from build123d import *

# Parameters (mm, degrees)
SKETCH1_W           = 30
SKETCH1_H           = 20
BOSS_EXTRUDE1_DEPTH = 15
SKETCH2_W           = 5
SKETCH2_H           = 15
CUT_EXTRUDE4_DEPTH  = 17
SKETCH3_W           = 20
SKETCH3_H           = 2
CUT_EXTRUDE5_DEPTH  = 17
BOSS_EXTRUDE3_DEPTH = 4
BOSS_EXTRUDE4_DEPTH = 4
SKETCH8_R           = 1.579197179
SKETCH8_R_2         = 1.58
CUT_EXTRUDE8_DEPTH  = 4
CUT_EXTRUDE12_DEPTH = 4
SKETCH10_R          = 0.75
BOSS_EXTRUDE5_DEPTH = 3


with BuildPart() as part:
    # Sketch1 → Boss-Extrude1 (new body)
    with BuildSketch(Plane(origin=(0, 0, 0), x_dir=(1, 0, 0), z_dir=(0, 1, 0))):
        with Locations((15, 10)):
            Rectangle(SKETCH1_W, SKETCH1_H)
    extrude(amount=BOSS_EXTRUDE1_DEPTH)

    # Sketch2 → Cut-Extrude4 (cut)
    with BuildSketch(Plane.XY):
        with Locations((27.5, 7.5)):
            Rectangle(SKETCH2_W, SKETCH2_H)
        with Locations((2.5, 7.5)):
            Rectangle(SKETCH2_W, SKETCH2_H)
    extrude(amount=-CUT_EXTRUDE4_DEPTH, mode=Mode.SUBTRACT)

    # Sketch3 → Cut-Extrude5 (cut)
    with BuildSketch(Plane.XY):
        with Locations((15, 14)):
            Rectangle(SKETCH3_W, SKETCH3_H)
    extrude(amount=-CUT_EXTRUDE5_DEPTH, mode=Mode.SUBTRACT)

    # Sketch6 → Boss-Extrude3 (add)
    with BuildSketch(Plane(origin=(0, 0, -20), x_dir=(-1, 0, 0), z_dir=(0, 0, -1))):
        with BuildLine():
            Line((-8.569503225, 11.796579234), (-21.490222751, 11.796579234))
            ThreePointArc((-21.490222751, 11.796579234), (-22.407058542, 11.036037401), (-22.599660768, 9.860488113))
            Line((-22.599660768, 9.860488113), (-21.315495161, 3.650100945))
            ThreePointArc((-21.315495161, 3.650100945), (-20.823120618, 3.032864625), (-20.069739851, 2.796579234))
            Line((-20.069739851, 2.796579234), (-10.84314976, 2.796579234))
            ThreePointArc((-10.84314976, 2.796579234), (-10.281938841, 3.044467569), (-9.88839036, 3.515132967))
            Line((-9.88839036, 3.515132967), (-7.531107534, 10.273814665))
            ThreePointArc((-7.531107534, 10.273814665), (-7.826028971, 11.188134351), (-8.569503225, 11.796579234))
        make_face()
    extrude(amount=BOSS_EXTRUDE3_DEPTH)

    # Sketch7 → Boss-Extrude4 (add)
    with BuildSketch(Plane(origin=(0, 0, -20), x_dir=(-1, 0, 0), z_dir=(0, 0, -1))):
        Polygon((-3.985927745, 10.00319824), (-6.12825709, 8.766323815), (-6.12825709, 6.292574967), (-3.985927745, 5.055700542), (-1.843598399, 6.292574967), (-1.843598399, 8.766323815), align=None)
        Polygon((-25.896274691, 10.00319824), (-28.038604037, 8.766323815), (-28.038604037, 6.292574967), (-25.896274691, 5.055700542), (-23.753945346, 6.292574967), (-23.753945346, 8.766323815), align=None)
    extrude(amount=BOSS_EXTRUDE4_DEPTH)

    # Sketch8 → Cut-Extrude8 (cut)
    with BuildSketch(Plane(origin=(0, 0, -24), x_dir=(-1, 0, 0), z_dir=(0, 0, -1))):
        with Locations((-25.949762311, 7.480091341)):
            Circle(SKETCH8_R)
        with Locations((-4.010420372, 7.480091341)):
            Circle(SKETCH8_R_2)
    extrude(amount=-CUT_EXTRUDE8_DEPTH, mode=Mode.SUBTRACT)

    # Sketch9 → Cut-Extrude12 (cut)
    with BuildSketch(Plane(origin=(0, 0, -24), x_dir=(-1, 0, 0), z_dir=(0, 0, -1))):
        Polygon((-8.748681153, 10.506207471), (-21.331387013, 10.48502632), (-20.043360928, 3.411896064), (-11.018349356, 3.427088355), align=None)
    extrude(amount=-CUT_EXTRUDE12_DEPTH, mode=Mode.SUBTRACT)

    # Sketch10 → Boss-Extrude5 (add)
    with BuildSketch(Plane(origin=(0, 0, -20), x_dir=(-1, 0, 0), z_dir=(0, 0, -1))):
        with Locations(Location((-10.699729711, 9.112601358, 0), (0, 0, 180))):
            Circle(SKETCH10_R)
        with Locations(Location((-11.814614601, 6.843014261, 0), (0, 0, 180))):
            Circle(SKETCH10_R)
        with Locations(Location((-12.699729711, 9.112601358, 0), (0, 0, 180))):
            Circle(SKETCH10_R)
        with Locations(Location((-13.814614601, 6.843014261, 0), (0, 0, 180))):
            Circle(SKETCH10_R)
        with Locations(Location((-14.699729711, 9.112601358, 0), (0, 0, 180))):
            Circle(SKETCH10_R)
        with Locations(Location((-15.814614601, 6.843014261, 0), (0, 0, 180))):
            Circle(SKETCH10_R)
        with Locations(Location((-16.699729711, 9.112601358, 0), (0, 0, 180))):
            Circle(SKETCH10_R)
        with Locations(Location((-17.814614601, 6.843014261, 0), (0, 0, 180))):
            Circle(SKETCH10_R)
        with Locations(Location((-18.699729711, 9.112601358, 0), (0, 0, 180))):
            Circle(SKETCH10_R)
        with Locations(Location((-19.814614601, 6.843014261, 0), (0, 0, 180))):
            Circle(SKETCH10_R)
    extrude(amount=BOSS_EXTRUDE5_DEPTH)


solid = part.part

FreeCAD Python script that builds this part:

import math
import FreeCAD as App
import Part
import Sketcher
Q = App.Units.Quantity

doc = App.newDocument("Part")
body = doc.addObject("PartDesign::Body", "Body")

# Sketch on XZ plane
sketch1 = body.newObject("Sketcher::SketchObject", "Sketch")
sketch1.AttachmentSupport = (doc.getObject("XZ_Plane"), [""])
sketch1.MapMode = "FlatFace"
sketch1.addGeometry([
    Part.LineSegment(App.Vector(0, -20, 0), App.Vector(0, 0, 0)),
    Part.LineSegment(App.Vector(0, 0, 0), App.Vector(30, 0, 0)),
    Part.LineSegment(App.Vector(30, 0, 0), App.Vector(30, -20, 0)),
    Part.LineSegment(App.Vector(30, -20, 0), App.Vector(0, -20, 0)),
], False)
sketch1.addConstraint([
    Sketcher.Constraint("Coincident", 0, 2, 1, 1),
    Sketcher.Constraint("Coincident", 1, 2, 2, 1),
    Sketcher.Constraint("Coincident", 2, 2, 3, 1),
    Sketcher.Constraint("Coincident", 3, 2, 0, 1),
    Sketcher.Constraint("Vertical", 0),
    Sketcher.Constraint("Horizontal", 1),
    Sketcher.Constraint("Vertical", 2),
    Sketcher.Constraint("Horizontal", 3),
    Sketcher.Constraint("Coincident", 0, 2, -1, 1),
    Sketcher.Constraint("DistanceX", 1, 1, 1, 2, 30.0),
    Sketcher.Constraint("DistanceY", 0, 1, 0, 2, 20.0),
])
pad1 = body.newObject("PartDesign::Pad", "Pad")
pad1.Profile = sketch1
pad1.Length = 15
pad1.Reversed = True

# Sketch on XY plane
sketch2 = body.newObject("Sketcher::SketchObject", "Sketch001")
sketch2.AttachmentSupport = (doc.getObject("XY_Plane"), [""])
sketch2.MapMode = "FlatFace"
sketch2.addGeometry([
    Part.LineSegment(App.Vector(25, 15, 0), App.Vector(25, 0, 0)),  # 0
    Part.LineSegment(App.Vector(25, 0, 0), App.Vector(30, 0, 0)),  # 1
    Part.LineSegment(App.Vector(30, 0, 0), App.Vector(30, 15, 0)),  # 2
    Part.LineSegment(App.Vector(30, 15, 0), App.Vector(25, 15, 0)),  # 3
    Part.LineSegment(App.Vector(0, 15, 0), App.Vector(0, 0, 0)),  # 4
    Part.LineSegment(App.Vector(0, 0, 0), App.Vector(5, 0, 0)),  # 5
    Part.LineSegment(App.Vector(5, 0, 0), App.Vector(5, 15, 0)),  # 6
    Part.LineSegment(App.Vector(5, 15, 0), App.Vector(0, 15, 0)),  # 7
], False)
sketch2.addConstraint([
    Sketcher.Constraint("Coincident", 0, 2, 1, 1),
    Sketcher.Constraint("Coincident", 1, 2, 2, 1),
    Sketcher.Constraint("Coincident", 2, 2, 3, 1),
    Sketcher.Constraint("Coincident", 3, 2, 0, 1),
    Sketcher.Constraint("Coincident", 4, 2, 5, 1),
    Sketcher.Constraint("Coincident", 5, 2, 6, 1),
    Sketcher.Constraint("Coincident", 6, 2, 7, 1),
    Sketcher.Constraint("Coincident", 7, 2, 4, 1),
    Sketcher.Constraint("Vertical", 0),
    Sketcher.Constraint("Horizontal", 1),
    Sketcher.Constraint("Vertical", 2),
    Sketcher.Constraint("Horizontal", 3),
    Sketcher.Constraint("Vertical", 4),
    Sketcher.Constraint("Horizontal", 5),
    Sketcher.Constraint("Vertical", 6),
    Sketcher.Constraint("Horizontal", 7),
    Sketcher.Constraint("Coincident", 4, 2, -1, 1),
    Sketcher.Constraint("PointOnObject", 0, 2, -1),
    Sketcher.Constraint("Horizontal", 3, 2, 6, 2),
    Sketcher.Constraint("Equal", 3, 5),
    Sketcher.Constraint("DistanceX", 1, 1, 1, 2, 5.0),
    Sketcher.Constraint("DistanceY", 0, 2, 0, 1, 15.0),
    Sketcher.Constraint("DistanceX", -1, 1, 0, 2, 25.0),
])
pocket1 = body.newObject("PartDesign::Pocket", "Pocket")
pocket1.Profile = sketch2
pocket1.Length = 17

# Sketch on XY plane
sketch3 = body.newObject("Sketcher::SketchObject", "Sketch002")
sketch3.AttachmentSupport = (doc.getObject("XY_Plane"), [""])
sketch3.MapMode = "FlatFace"
sketch3.addGeometry([
    Part.LineSegment(App.Vector(5, 15, 0), App.Vector(5, 13, 0)),
    Part.LineSegment(App.Vector(5, 13, 0), App.Vector(25, 13, 0)),
    Part.LineSegment(App.Vector(25, 13, 0), App.Vector(25, 15, 0)),
    Part.LineSegment(App.Vector(25, 15, 0), App.Vector(5, 15, 0)),
], False)
sketch3.addConstraint([
    Sketcher.Constraint("Coincident", 0, 2, 1, 1),
    Sketcher.Constraint("Coincident", 1, 2, 2, 1),
    Sketcher.Constraint("Coincident", 2, 2, 3, 1),
    Sketcher.Constraint("Coincident", 3, 2, 0, 1),
    Sketcher.Constraint("Vertical", 0),
    Sketcher.Constraint("Horizontal", 1),
    Sketcher.Constraint("Vertical", 2),
    Sketcher.Constraint("Horizontal", 3),
    Sketcher.Constraint("DistanceX", 1, 1, 1, 2, 20.0),
    Sketcher.Constraint("DistanceY", 0, 2, 0, 1, 2.0),
    Sketcher.Constraint("DistanceX", -1, 1, 0, 2, 5.0),
    Sketcher.Constraint("DistanceY", -1, 1, 0, 2, 13.0),
])
pocket2 = body.newObject("PartDesign::Pocket", "Pocket001")
pocket2.Profile = sketch3
pocket2.Length = 17

# Sketch on XY plane
sketch4 = body.newObject("Sketcher::SketchObject", "Sketch003")
sketch4.AttachmentSupport = (doc.getObject("XY_Plane"), [""])
sketch4.MapMode = "FlatFace"
sketch4.AttachmentOffset = App.Placement(App.Vector(0, 0, -20), App.Rotation())
sketch4.addGeometry([
    Part.LineSegment(App.Vector(8.6, 11.8, 0), App.Vector(21.5, 11.8, 0)),  # 0
    Part.ArcOfCircle(Part.Circle(App.Vector(20.9, 10.2, 0), App.Vector(0, 0, 1), 1.7), math.radians(-11), math.radians(71)),  # 1
    Part.LineSegment(App.Vector(22.6, 9.9, 0), App.Vector(21.3, 3.7, 0)),  # 2
    Part.ArcOfCircle(Part.Circle(App.Vector(20.1, 4.1, 0), App.Vector(0, 0, 1), 1.4), math.radians(-90), math.radians(-22)),  # 3
    Part.LineSegment(App.Vector(20.1, 2.8, 0), App.Vector(10.8, 2.8, 0)),  # 4
    Part.ArcOfCircle(Part.Circle(App.Vector(11.1, 4.1, 0), App.Vector(0, 0, 1), 1.3), math.radians(-153), math.radians(-101)),  # 5
    Part.LineSegment(App.Vector(9.9, 3.5, 0), App.Vector(7.5, 10.3, 0)),  # 6
    Part.ArcOfCircle(Part.Circle(App.Vector(9.2, 10.2, 0), App.Vector(0, 0, 1), 1.7), math.radians(113), math.radians(179)),  # 7
], False)
sketch4.addConstraint([
    Sketcher.Constraint("Coincident", 0, 2, 1, 2),
    Sketcher.Constraint("Coincident", 1, 1, 2, 1),
    Sketcher.Constraint("Coincident", 2, 2, 3, 2),
    Sketcher.Constraint("Coincident", 3, 1, 4, 1),
    Sketcher.Constraint("Coincident", 4, 2, 5, 2),
    Sketcher.Constraint("Coincident", 5, 1, 6, 1),
    Sketcher.Constraint("Coincident", 6, 2, 7, 2),
    Sketcher.Constraint("Coincident", 7, 1, 0, 1),
    Sketcher.Constraint("Horizontal", 0),
    Sketcher.Constraint("Horizontal", 4),
    Sketcher.Constraint("Equal", 3, 5),
    Sketcher.Constraint("Equal", 1, 7),
    Sketcher.Constraint("Radius", 1, 1.7),
    Sketcher.Constraint("Radius", 3, 1.35),
    Sketcher.Constraint("DistanceY", 4, 2, 7, 1, 9.0),
    Sketcher.Constraint("DistanceX", 0, 1, 0, 2, 12.92072),
    Sketcher.Constraint("DistanceX", 4, 2, 4, 1, 9.22659),
    Sketcher.Constraint("DistanceY", -1, 1, 2, 2, 3.650101),
    Sketcher.Constraint("DistanceX", 5, 1, 3, 3, 10.171699),
    Sketcher.Constraint("Distance", 6, 7.157972),
    Sketcher.Constraint("DistanceY", -1, 1, 1, 3, 10.190821),
    Sketcher.Constraint("DistanceX", -1, 1, 3, 3, 20.060089),
    Sketcher.Constraint("DistanceY", -1, 1, 5, 3, 4.123119),
    Sketcher.Constraint("DistanceY", -1, 1, 7, 3, 10.230369),
    Sketcher.Constraint("DistanceY", -1, 1, 0, 2, 11.796579),
    Sketcher.Constraint("DistanceX", -1, 1, 1, 1, 22.599661),
    Sketcher.Constraint("DistanceY", -1, 1, 1, 1, 9.860488),
    Sketcher.Constraint("DistanceX", -1, 1, 3, 1, 20.06974),
])
pad2 = body.newObject("PartDesign::Pad", "Pad001")
pad2.Profile = sketch4
pad2.Length = 4
pad2.Reversed = True

# Sketch on XY plane
sketch5 = body.newObject("Sketcher::SketchObject", "Sketch004")
sketch5.AttachmentSupport = (doc.getObject("XY_Plane"), [""])
sketch5.MapMode = "FlatFace"
sketch5.AttachmentOffset = App.Placement(App.Vector(0, 0, -20), App.Rotation())
sketch5.addGeometry([
    Part.LineSegment(App.Vector(4, 10, 0), App.Vector(6.1, 8.8, 0)),  # 0
    Part.LineSegment(App.Vector(6.1, 8.8, 0), App.Vector(6.1, 6.3, 0)),  # 1
    Part.LineSegment(App.Vector(6.1, 6.3, 0), App.Vector(4, 5.1, 0)),  # 2
    Part.LineSegment(App.Vector(4, 5.1, 0), App.Vector(1.8, 6.3, 0)),  # 3
    Part.LineSegment(App.Vector(1.8, 6.3, 0), App.Vector(1.8, 8.8, 0)),  # 4
    Part.LineSegment(App.Vector(1.8, 8.8, 0), App.Vector(4, 10, 0)),  # 5
    Part.LineSegment(App.Vector(25.9, 10, 0), App.Vector(28, 8.8, 0)),  # 6
    Part.LineSegment(App.Vector(28, 8.8, 0), App.Vector(28, 6.3, 0)),  # 7
    Part.LineSegment(App.Vector(28, 6.3, 0), App.Vector(25.9, 5.1, 0)),  # 8
    Part.LineSegment(App.Vector(25.9, 5.1, 0), App.Vector(23.8, 6.3, 0)),  # 9
    Part.LineSegment(App.Vector(23.8, 6.3, 0), App.Vector(23.8, 8.8, 0)),  # 10
    Part.LineSegment(App.Vector(23.8, 8.8, 0), App.Vector(25.9, 10, 0)),  # 11
], False)
sketch5.addConstraint([
    Sketcher.Constraint("Coincident", 0, 2, 1, 1),
    Sketcher.Constraint("Coincident", 1, 2, 2, 1),
    Sketcher.Constraint("Coincident", 2, 2, 3, 1),
    Sketcher.Constraint("Coincident", 3, 2, 4, 1),
    Sketcher.Constraint("Coincident", 4, 2, 5, 1),
    Sketcher.Constraint("Coincident", 5, 2, 0, 1),
    Sketcher.Constraint("Coincident", 6, 2, 7, 1),
    Sketcher.Constraint("Coincident", 7, 2, 8, 1),
    Sketcher.Constraint("Coincident", 8, 2, 9, 1),
    Sketcher.Constraint("Coincident", 9, 2, 10, 1),
    Sketcher.Constraint("Coincident", 10, 2, 11, 1),
    Sketcher.Constraint("Coincident", 11, 2, 6, 1),
    Sketcher.Constraint("Vertical", 1),
    Sketcher.Constraint("Vertical", 4),
    Sketcher.Constraint("Vertical", 7),
    Sketcher.Constraint("Vertical", 10),
    Sketcher.Constraint("Parallel", 0, 3),
    Sketcher.Constraint("Parallel", 2, 5),
    Sketcher.Constraint("Parallel", 3, 6),
    Sketcher.Constraint("Parallel", 5, 8),
    Sketcher.Constraint("Parallel", 6, 9),
    Sketcher.Constraint("Parallel", 8, 11),
    Sketcher.Constraint("Horizontal", 1, 2, 3, 2),
    Sketcher.Constraint("Horizontal", 0, 2, 4, 2),
    Sketcher.Constraint("Horizontal", 4, 2, 6, 2),
    Sketcher.Constraint("Horizontal", 3, 2, 7, 2),
    Sketcher.Constraint("Horizontal", 2, 2, 8, 2),
    Sketcher.Constraint("Horizontal", 7, 2, 9, 2),
    Sketcher.Constraint("Horizontal", 6, 2, 10, 2),
    Sketcher.Constraint("Vertical", 2, 2, 5, 2),
    Sketcher.Constraint("Angle", 0, Q("-30 deg")),
    Sketcher.Constraint("DistanceY", 1, 2, 1, 1, 2.473749),
    Sketcher.Constraint("DistanceY", -1, 1, 2, 2, 5.055701),
    Sketcher.Constraint("DistanceX", -1, 1, 3, 2, 1.843598),
    Sketcher.Constraint("DistanceY", -1, 1, 5, 2, 10.003198),
    Sketcher.Constraint("DistanceX", 1, 2, 9, 2, 17.625688),
])
pad3 = body.newObject("PartDesign::Pad", "Pad002")
pad3.Profile = sketch5
pad3.Length = 4
pad3.Reversed = True

# Sketch on XY plane
sketch6 = body.newObject("Sketcher::SketchObject", "Sketch005")
sketch6.AttachmentSupport = (doc.getObject("XY_Plane"), [""])
sketch6.MapMode = "FlatFace"
sketch6.AttachmentOffset = App.Placement(App.Vector(0, 0, -24), App.Rotation())
sketch6.addGeometry([
    Part.Circle(App.Vector(25.9, 7.5, 0), App.Vector(0, 0, 1), 1.6),
    Part.Circle(App.Vector(4, 7.5, 0), App.Vector(0, 0, 1), 1.6),
], False)
sketch6.addConstraint([
    Sketcher.Constraint("Horizontal", 0, 3, 1, 3),
    Sketcher.Constraint("Diameter", 1, 3.16),
    Sketcher.Constraint("Diameter", 0, 3.158394),
    Sketcher.Constraint("DistanceY", -1, 1, 0, 3, 7.480091),
    Sketcher.Constraint("DistanceX", -1, 1, 1, 3, 4.01042),
    Sketcher.Constraint("DistanceX", 1, 3, 0, 3, 21.939342),
])
pocket3 = body.newObject("PartDesign::Pocket", "Pocket002")
pocket3.Profile = sketch6
pocket3.Length = 4
pocket3.Reversed = True

# Sketch on XY plane
sketch7 = body.newObject("Sketcher::SketchObject", "Sketch006")
sketch7.AttachmentSupport = (doc.getObject("XY_Plane"), [""])
sketch7.MapMode = "FlatFace"
sketch7.AttachmentOffset = App.Placement(App.Vector(0, 0, -24), App.Rotation())
sketch7.addGeometry([
    Part.LineSegment(App.Vector(9, 11, 0), App.Vector(21, 10, 0)),
    Part.LineSegment(App.Vector(21, 10, 0), App.Vector(20, 3, 0)),
    Part.LineSegment(App.Vector(20, 3, 0), App.Vector(11, 3, 0)),
    Part.LineSegment(App.Vector(11, 3, 0), App.Vector(9, 11, 0)),
], False)
sketch7.addConstraint([
    Sketcher.Constraint("Coincident", 0, 2, 1, 1),
    Sketcher.Constraint("Coincident", 1, 2, 2, 1),
    Sketcher.Constraint("Coincident", 2, 2, 3, 1),
    Sketcher.Constraint("Coincident", 3, 2, 0, 1),
    Sketcher.Constraint("Parallel", 0, 2),
    Sketcher.Constraint("Distance", 1, 7.189449),
    Sketcher.Constraint("DistanceX", -1, 1, 1, 2, 20.043361),
    Sketcher.Constraint("DistanceX", -1, 1, 2, 2, 11.018349),
    Sketcher.Constraint("DistanceY", -1, 1, 2, 2, 3.427088),
    Sketcher.Constraint("DistanceX", -1, 1, 3, 2, 8.748681),
    Sketcher.Constraint("DistanceY", 1, 2, 0, 2, 7.07313),
    Sketcher.Constraint("DistanceY", 2, 2, 3, 2, 7.079119),
])
pocket4 = body.newObject("PartDesign::Pocket", "Pocket003")
pocket4.Profile = sketch7
pocket4.Length = 4
pocket4.Reversed = True

# Sketch on XY plane
sketch8 = body.newObject("Sketcher::SketchObject", "Sketch007")
sketch8.AttachmentSupport = (doc.getObject("XY_Plane"), [""])
sketch8.MapMode = "FlatFace"
sketch8.AttachmentOffset = App.Placement(App.Vector(0, 0, -20), App.Rotation())
sketch8.addGeometry([
    Part.Circle(App.Vector(10.7, 9.1, 0), App.Vector(0, 0, 1), 0.8),  # 0
    Part.Circle(App.Vector(11.8, 6.8, 0), App.Vector(0, 0, 1), 0.8),  # 1
    Part.Circle(App.Vector(12.7, 9.1, 0), App.Vector(0, 0, 1), 0.8),  # 2
    Part.Circle(App.Vector(13.8, 6.8, 0), App.Vector(0, 0, 1), 0.8),  # 3
    Part.Circle(App.Vector(14.7, 9.1, 0), App.Vector(0, 0, 1), 0.8),  # 4
    Part.Circle(App.Vector(15.8, 6.8, 0), App.Vector(0, 0, 1), 0.8),  # 5
    Part.Circle(App.Vector(16.7, 9.1, 0), App.Vector(0, 0, 1), 0.8),  # 6
    Part.Circle(App.Vector(17.8, 6.8, 0), App.Vector(0, 0, 1), 0.8),  # 7
    Part.Circle(App.Vector(18.7, 9.1, 0), App.Vector(0, 0, 1), 0.8),  # 8
    Part.Circle(App.Vector(19.8, 6.8, 0), App.Vector(0, 0, 1), 0.8),  # 9
], False)
sketch8.addConstraint([
    Sketcher.Constraint("Equal", 0, 1),
    Sketcher.Constraint("Equal", 1, 2),
    Sketcher.Constraint("Equal", 2, 3),
    Sketcher.Constraint("Equal", 3, 4),
    Sketcher.Constraint("Equal", 4, 5),
    Sketcher.Constraint("Equal", 5, 6),
    Sketcher.Constraint("Equal", 6, 7),
    Sketcher.Constraint("Equal", 7, 8),
    Sketcher.Constraint("Equal", 8, 9),
    Sketcher.Constraint("Horizontal", 0, 3, 2, 3),
    Sketcher.Constraint("Horizontal", 1, 3, 3, 3),
    Sketcher.Constraint("Horizontal", 2, 3, 4, 3),
    Sketcher.Constraint("Horizontal", 3, 3, 5, 3),
    Sketcher.Constraint("Horizontal", 4, 3, 6, 3),
    Sketcher.Constraint("Horizontal", 5, 3, 7, 3),
    Sketcher.Constraint("Horizontal", 6, 3, 8, 3),
    Sketcher.Constraint("Horizontal", 7, 3, 9, 3),
    Sketcher.Constraint("Diameter", 0, 1.5),
    Sketcher.Constraint("DistanceX", 0, 3, 2, 3, 2.0),
    Sketcher.Constraint("DistanceX", 1, 3, 3, 3, 2.0),
    Sketcher.Constraint("DistanceX", 2, 3, 4, 3, 2.0),
    Sketcher.Constraint("DistanceX", 3, 3, 5, 3, 2.0),
    Sketcher.Constraint("DistanceX", 4, 3, 6, 3, 2.0),
    Sketcher.Constraint("DistanceX", 5, 3, 7, 3, 2.0),
    Sketcher.Constraint("DistanceX", 6, 3, 8, 3, 2.0),
    Sketcher.Constraint("DistanceX", 7, 3, 9, 3, 2.0),
    Sketcher.Constraint("DistanceY", -1, 1, 0, 3, 9.112601),
    Sketcher.Constraint("DistanceX", -1, 1, 0, 3, 10.69973),
    Sketcher.Constraint("DistanceX", -1, 1, 1, 3, 11.814615),
    Sketcher.Constraint("DistanceY", -1, 1, 1, 3, 6.843014),
])
pad4 = body.newObject("PartDesign::Pad", "Pad003")
pad4.Profile = sketch8
pad4.Length = 3
pad4.Reversed = True

doc.recompute()
